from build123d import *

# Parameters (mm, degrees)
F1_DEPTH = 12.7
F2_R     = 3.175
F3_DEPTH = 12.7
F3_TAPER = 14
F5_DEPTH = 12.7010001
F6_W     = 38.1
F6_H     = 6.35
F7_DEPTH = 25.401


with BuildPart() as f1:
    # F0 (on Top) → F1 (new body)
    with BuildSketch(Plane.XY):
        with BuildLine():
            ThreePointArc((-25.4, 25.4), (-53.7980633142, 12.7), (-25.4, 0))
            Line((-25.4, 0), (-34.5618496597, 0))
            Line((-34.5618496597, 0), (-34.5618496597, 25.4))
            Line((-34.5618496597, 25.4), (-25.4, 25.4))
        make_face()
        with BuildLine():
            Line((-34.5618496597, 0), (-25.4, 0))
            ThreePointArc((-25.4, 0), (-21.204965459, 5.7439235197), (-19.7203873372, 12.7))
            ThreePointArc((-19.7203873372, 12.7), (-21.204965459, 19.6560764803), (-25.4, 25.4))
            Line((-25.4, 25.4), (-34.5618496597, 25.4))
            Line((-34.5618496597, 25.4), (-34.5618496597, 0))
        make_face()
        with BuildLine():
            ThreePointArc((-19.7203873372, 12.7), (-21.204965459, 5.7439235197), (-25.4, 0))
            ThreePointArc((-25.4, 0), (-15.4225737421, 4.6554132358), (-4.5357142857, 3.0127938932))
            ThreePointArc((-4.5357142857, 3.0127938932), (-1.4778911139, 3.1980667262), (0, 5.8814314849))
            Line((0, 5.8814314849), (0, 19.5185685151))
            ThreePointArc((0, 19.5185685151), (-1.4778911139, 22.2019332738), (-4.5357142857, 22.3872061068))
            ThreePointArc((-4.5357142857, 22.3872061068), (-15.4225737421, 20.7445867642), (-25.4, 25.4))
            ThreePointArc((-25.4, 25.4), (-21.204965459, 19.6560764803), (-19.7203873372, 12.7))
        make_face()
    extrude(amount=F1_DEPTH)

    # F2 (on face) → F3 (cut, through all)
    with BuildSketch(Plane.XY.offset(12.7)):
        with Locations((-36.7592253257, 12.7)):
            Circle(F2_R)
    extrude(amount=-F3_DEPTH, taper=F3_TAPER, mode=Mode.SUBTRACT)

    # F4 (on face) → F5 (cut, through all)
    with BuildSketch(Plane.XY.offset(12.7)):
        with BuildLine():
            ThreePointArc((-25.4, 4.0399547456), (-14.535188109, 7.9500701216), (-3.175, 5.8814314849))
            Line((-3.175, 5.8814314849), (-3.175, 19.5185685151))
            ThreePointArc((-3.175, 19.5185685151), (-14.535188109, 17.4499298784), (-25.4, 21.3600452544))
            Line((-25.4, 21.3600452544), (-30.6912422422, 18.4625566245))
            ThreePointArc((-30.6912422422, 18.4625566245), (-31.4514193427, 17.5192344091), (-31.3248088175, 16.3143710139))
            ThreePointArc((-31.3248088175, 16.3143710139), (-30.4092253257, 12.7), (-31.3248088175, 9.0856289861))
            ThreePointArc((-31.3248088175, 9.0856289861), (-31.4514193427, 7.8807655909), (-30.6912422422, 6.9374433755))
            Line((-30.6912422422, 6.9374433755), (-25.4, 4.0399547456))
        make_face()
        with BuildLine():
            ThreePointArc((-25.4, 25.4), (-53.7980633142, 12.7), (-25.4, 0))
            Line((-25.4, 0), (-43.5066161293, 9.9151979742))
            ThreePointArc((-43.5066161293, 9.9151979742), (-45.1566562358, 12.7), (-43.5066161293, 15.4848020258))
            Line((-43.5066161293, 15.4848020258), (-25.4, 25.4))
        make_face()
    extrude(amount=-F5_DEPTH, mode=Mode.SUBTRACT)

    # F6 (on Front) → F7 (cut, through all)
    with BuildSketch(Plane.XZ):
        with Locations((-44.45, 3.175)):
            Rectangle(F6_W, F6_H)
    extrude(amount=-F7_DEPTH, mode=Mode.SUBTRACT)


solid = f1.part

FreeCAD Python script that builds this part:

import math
import FreeCAD as App
import Part
import Sketcher

V = App.Vector
Q = App.Units.Quantity

doc = App.newDocument("Part")
body = doc.addObject("PartDesign::Body", "Body")

sketch1 = doc.addObject("Sketcher::SketchObject", "Sketch")
body.addObject(sketch1)
sketch1.AttachmentSupport = (doc.XY_Plane, [""])
sketch1.MapMode = "FlatFace"
sketch1.addGeometry(Part.ArcOfCircle(Part.Circle(V(-36.759225, 12.7, 0), V(0, 0, 1), 17.038838), math.radians(48.189685), math.radians(311.810315)), False)
sketch1.addGeometry(Part.ArcOfCircle(Part.Circle(V(-12.7, -14.199032, 0), V(0, 0, 1), 19.05), math.radians(64.623066), math.radians(131.810315)), False)
sketch1.addGeometry(Part.ArcOfCircle(Part.Circle(V(-3.175, 5.881431, 0), V(0, 0, 1), 3.175), math.radians(-115.376934), math.radians(0)), False)
sketch1.addGeometry(Part.LineSegment(V(0, 5.881431, 0), V(0, 19.518569, 0)), False)
sketch1.addGeometry(Part.ArcOfCircle(Part.Circle(V(-3.175, 19.518569, 0), V(0, 0, 1), 3.175), math.radians(0), math.radians(115.376934)), False)
sketch1.addGeometry(Part.ArcOfCircle(Part.Circle(V(-12.7, 39.599032, 0), V(0, 0, 1), 19.05), math.radians(-131.810315), math.radians(-64.623066)), False)
sketch1.addConstraint(Sketcher.Constraint("Tangent", 0, 2, 1, 2))
sketch1.addConstraint(Sketcher.Constraint("Tangent", 1, 1, 2, 1))
sketch1.addConstraint(Sketcher.Constraint("Tangent", 2, 2, 3, 1))
sketch1.addConstraint(Sketcher.Constraint("Tangent", 3, 2, 4, 1))
sketch1.addConstraint(Sketcher.Constraint("Tangent", 4, 2, 5, 2))
sketch1.addConstraint(Sketcher.Constraint("Tangent", 5, 1, 0, 1))
sketch1.addConstraint(Sketcher.Constraint("Vertical", 3))
sketch1.addConstraint(Sketcher.Constraint("Equal", 2, 4))
sketch1.addConstraint(Sketcher.Constraint("Equal", 1, 5))
sketch1.addConstraint(Sketcher.Constraint("PointOnObject", 0, 2, -1))
sketch1.addConstraint(Sketcher.Constraint("PointOnObject", 2, 2, -2))
sketch1.addConstraint(Sketcher.Constraint("Vertical", 1, 3, 5, 3))
sketch1.addConstraint(Sketcher.Constraint("Radius", 1, Q("0.75 in")))
sketch1.addConstraint(Sketcher.Constraint("DistanceX", 0, 2, -1, 1, Q("1 in")))
sketch1.addConstraint(Sketcher.Constraint("DistanceY", -1, 1, 5, 1, Q("1 in")))
sketch1.addConstraint(Sketcher.Constraint("Radius", 2, Q("0.125 in")))
sketch1.addConstraint(Sketcher.Constraint("DistanceX", 1, 3, -1, 1, Q("0.5 in")))
pad1 = doc.addObject("PartDesign::Pad", "Pad")
body.addObject(pad1)
pad1.Profile = sketch1
pad1.Length = Q("0.5 in")

sketch2 = doc.addObject("Sketcher::SketchObject", "Sketch001")
body.addObject(sketch2)
sketch2.AttachmentSupport = (doc.XY_Plane, [""])
sketch2.MapMode = "FlatFace"
sketch2.AttachmentOffset = App.Placement(V(0, 0, 0.5 * 25.4), App.Rotation())
sketch2.addGeometry(Part.Circle(V(-36.759225, 12.7, 0), V(0, 0, 1), 3.175), False)
sketch2.addConstraint(Sketcher.Constraint("Diameter", 0, Q("0.25 in")))
sketch2.addConstraint(Sketcher.Constraint("DistanceY", -1, 1, 0, 3, Q("0.5 in")))
sketch2.addConstraint(Sketcher.Constraint("DistanceX", 0, 3, -1, 1, 36.759225))
pocket1 = doc.addObject("PartDesign::Pocket", "Pocket")
body.addObject(pocket1)
pocket1.Profile = sketch2
pocket1.Length = Q("0.5 in")
pocket1.TaperAngle = -14

sketch3 = doc.addObject("Sketcher::SketchObject", "Sketch002")
body.addObject(sketch3)
sketch3.AttachmentSupport = (doc.XY_Plane, [""])
sketch3.MapMode = "FlatFace"
sketch3.AttachmentOffset = App.Placement(V(0, 0, 0.5 * 25.4), App.Rotation())
sketch3.addGeometry(Part.ArcOfCircle(Part.Circle(V(-12.7, -14.199032, 0), V(0, 0, 1), 22.225), math.radians(64.623066), math.radians(124.849905)), False)
sketch3.addGeometry(Part.LineSegment(V(-3.175, 5.881431, 0), V(-3.175, 19.518569, 0)), False)
sketch3.addGeometry(Part.ArcOfCircle(Part.Circle(V(-12.7, 39.599032, 0), V(0, 0, 1), 22.225), math.radians(-124.849905), math.radians(-64.623066)), False)
sketch3.addGeometry(Part.LineSegment(V(-25.4, 21.360045, 0), V(-30.691242, 18.462557, 0)), False)
sketch3.addGeometry(Part.ArcOfCircle(Part.Circle(V(-29.928762, 17.070156, 0), V(0, 0, 1), 1.5875), math.radians(118.705149), math.radians(208.430004)), False)
sketch3.addGeometry(Part.ArcOfCircle(Part.Circle(V(-38.001089, 12.7, 0), V(0, 0, 1), 7.591864), math.radians(-28.430004), math.radians(28.430004)), False)
sketch3.addGeometry(Part.ArcOfCircle(Part.Circle(V(-29.928762, 8.329844, 0), V(0, 0, 1), 1.5875), math.radians(151.569996), math.radians(241.294851)), False)
sketch3.addGeometry(Part.LineSegment(V(-30.691242, 6.937443, 0), V(-25.4, 4.039955, 0)), False)
sketch3.addGeometry(Part.ArcOfCircle(Part.Circle(V(-36.759225, 12.7, 0), V(0, 0, 1), 17.038838), math.radians(48.189685), math.radians(311.810315)), False)
sketch3.addGeometry(Part.LineSegment(V(-25.4, 0, 0), V(-43.506616, 9.915198, 0)), False)
sketch3.addGeometry(Part.ArcOfCircle(Part.Circle(V(-41.981656, 12.7, 0), V(0, 0, 1), 3.175), math.radians(118.705149), math.radians(241.294851)), False)
sketch3.addGeometry(Part.LineSegment(V(-43.506616, 15.484802, 0), V(-25.4, 25.4, 0)), False)
sketch3.addConstraint(Sketcher.Constraint("Coincident", 0, 1, 1, 1))
sketch3.addConstraint(Sketcher.Constraint("Coincident", 1, 2, 2, 2))
sketch3.addConstraint(Sketcher.Constraint("Coincident", 2, 1, 3, 1))
sketch3.addConstraint(Sketcher.Constraint("Tangent", 3, 2, 4, 1))
sketch3.addConstraint(Sketcher.Constraint("Tangent", 4, 2, 5, 2))
sketch3.addConstraint(Sketcher.Constraint("Tangent", 5, 1, 6, 1))
sketch3.addConstraint(Sketcher.Constraint("Tangent", 6, 2, 7, 1))
sketch3.addConstraint(Sketcher.Constraint("Coincident", 7, 2, 0, 2))
sketch3.addConstraint(Sketcher.Constraint("Coincident", 8, 2, 9, 1))
sketch3.addConstraint(Sketcher.Constraint("Tangent", 9, 2, 10, 2))
sketch3.addConstraint(Sketcher.Constraint("Tangent", 10, 1, 11, 1))
sketch3.addConstraint(Sketcher.Constraint("Coincident", 11, 2, 8, 1))
sketch3.addConstraint(Sketcher.Constraint("Vertical", 1))
sketch3.addConstraint(Sketcher.Constraint("Equal", 0, 2))
sketch3.addConstraint(Sketcher.Constraint("Equal", 4, 6))
sketch3.addConstraint(Sketcher.Constraint("PointOnObject", 8, 2, -1))
sketch3.addConstraint(Sketcher.Constraint("Parallel", 7, 9))
sketch3.addConstraint(Sketcher.Constraint("Parallel", 3, 11))
sketch3.addConstraint(Sketcher.Constraint("Horizontal", 5, 3, 8, 3))
sketch3.addConstraint(Sketcher.Constraint("Horizontal", 8, 3, 10, 3))
sketch3.addConstraint(Sketcher.Constraint("Vertical", 0, 3, 2, 3))
sketch3.addConstraint(Sketcher.Constraint("Vertical", 4, 3, 6, 3))
sketch3.addConstraint(Sketcher.Constraint("Vertical", 3, 2, 6, 2))
sketch3.addConstraint(Sketcher.Constraint("Vertical", 2, 1, 7, 2))
sketch3.addConstraint(Sketcher.Constraint("Vertical", 7, 2, 8, 2))
sketch3.addConstraint(Sketcher.Constraint("DistanceX", 2, 1, -1, 1, Q("1 in")))
sketch3.addConstraint(Sketcher.Constraint("DistanceY", -1, 1, 11, 2, Q("1 in")))
sketch3.addConstraint(Sketcher.Constraint("Radius", 0, Q("0.875 in")))
sketch3.addConstraint(Sketcher.Constraint("Radius", 4, Q("0.0625 in")))
sketch3.addConstraint(Sketcher.Constraint("Radius", 10, Q("0.125 in")))
sketch3.addConstraint(Sketcher.Constraint("DistanceX", 0, 3, -1, 1, Q("0.5 in")))
sketch3.addConstraint(Sketcher.Constraint("DistanceX", 0, 1, -1, 1, Q("0.125 in")))
sketch3.addConstraint(Sketcher.Constraint("DistanceY", 6, 3, 2, 1, Q("0.513 in")))
sketch3.addConstraint(Sketcher.Constraint("Radius", 5, 7.591864))
sketch3.addConstraint(Sketcher.Constraint("Radius", 8, 17.038838))
sketch3.addConstraint(Sketcher.Constraint("DistanceY", 0, 1, 2, 3, 33.7176))
sketch3.addConstraint(Sketcher.Constraint("DistanceY", 4, 3, 3, 2, 1.392401))
pocket2 = doc.addObject("PartDesign::Pocket", "Pocket001")
body.addObject(pocket2)
pocket2.Profile = sketch3
pocket2.Type = "ThroughAll"

sketch4 = doc.addObject("Sketcher::SketchObject", "Sketch003")
body.addObject(sketch4)
sketch4.AttachmentSupport = (doc.XZ_Plane, [""])
sketch4.MapMode = "FlatFace"
sketch4.addGeometry(Part.LineSegment(V(-63.5, 6.35, 0), V(-63.5, 0, 0)), False)
sketch4.addGeometry(Part.LineSegment(V(-63.5, 0, 0), V(-25.4, 0, 0)), False)
sketch4.addGeometry(Part.LineSegment(V(-25.4, 0, 0), V(-25.4, 6.35, 0)), False)
sketch4.addGeometry(Part.LineSegment(V(-25.4, 6.35, 0), V(-63.5, 6.35, 0)), False)
sketch4.addConstraint(Sketcher.Constraint("Coincident", 0, 2, 1, 1))
sketch4.addConstraint(Sketcher.Constraint("Coincident", 1, 2, 2, 1))
sketch4.addConstraint(Sketcher.Constraint("Coincident", 2, 2, 3, 1))
sketch4.addConstraint(Sketcher.Constraint("Coincident", 3, 2, 0, 1))
sketch4.addConstraint(Sketcher.Constraint("Vertical", 0))
sketch4.addConstraint(Sketcher.Constraint("Horizontal", 1))
sketch4.addConstraint(Sketcher.Constraint("Vertical", 2))
sketch4.addConstraint(Sketcher.Constraint("Horizontal", 3))
sketch4.addConstraint(Sketcher.Constraint("PointOnObject", 0, 2, -1))
sketch4.addConstraint(Sketcher.Constraint("DistanceX", 1, 1, 1, 2, Q("1.5 in")))
sketch4.addConstraint(Sketcher.Constraint("DistanceX", 1, 2, -1, 1, Q("1 in")))
sketch4.addConstraint(Sketcher.Constraint("DistanceY", 0, 2, 0, 1, Q("0.25 in")))
pocket3 = doc.addObject("PartDesign::Pocket", "Pocket002")
body.addObject(pocket3)
pocket3.Profile = sketch4
pocket3.Type = "ThroughAll"

doc.recompute()
